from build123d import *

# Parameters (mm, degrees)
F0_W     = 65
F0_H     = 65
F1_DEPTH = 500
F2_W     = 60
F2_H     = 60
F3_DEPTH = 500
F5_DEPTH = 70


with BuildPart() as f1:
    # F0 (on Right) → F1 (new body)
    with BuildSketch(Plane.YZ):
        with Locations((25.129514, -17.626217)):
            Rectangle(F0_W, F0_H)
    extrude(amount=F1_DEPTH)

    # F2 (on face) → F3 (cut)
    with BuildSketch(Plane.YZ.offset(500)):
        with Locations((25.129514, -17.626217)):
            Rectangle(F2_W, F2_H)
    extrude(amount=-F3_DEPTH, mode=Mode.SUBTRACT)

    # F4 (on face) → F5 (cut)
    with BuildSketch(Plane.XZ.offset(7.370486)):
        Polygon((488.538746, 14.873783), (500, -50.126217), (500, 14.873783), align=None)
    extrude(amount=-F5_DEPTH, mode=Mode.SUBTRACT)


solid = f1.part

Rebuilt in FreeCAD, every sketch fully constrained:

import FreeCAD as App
import Part
import Sketcher

V = App.Vector
Q = App.Units.Quantity


def add_polygon(sketch, points):
    """Adds a closed chain of lines whose ends are joined by coincident constraints."""
    first, n = sketch.GeometryCount, len(points)
    for a, b in zip(points, points[1:] + points[:1]):
        sketch.addGeometry(Part.LineSegment(App.Vector(*a, 0), App.Vector(*b, 0)), False)
    for i in range(n):
        sketch.addConstraint(Sketcher.Constraint("Coincident", first + i, 2, first + (i + 1) % n, 1))

doc = App.newDocument("Part")
body = doc.addObject("PartDesign::Body", "Body")

# Sketch on YZ plane
sketch1 = doc.addObject("Sketcher::SketchObject", "Sketch")
body.addObject(sketch1)
sketch1.AttachmentSupport = (doc.YZ_Plane, [""])
sketch1.MapMode = "FlatFace"
add_polygon(sketch1, [(-7, 15), (-7, -50), (58, -50), (58, 15)])  # lines 0-3
sketch1.addConstraint([
    Sketcher.Constraint("Vertical", 0),
    Sketcher.Constraint("Horizontal", 1),
    Sketcher.Constraint("Vertical", 2),
    Sketcher.Constraint("Horizontal", 3),
    Sketcher.Constraint("Equal", 3, 0),
    Sketcher.Constraint("DistanceX", 1, 1, 1, 2, 65.0),
    Sketcher.Constraint("DistanceX", 0, 2, -1, 1, 7.370486),
    Sketcher.Constraint("DistanceY", 0, 2, -1, 1, 50.126217),
])
pad1 = doc.addObject("PartDesign::Pad", "Pad")
body.addObject(pad1)
pad1.Profile = sketch1
pad1.Length = 500

# Sketch on YZ plane
sketch2 = doc.addObject("Sketcher::SketchObject", "Sketch001")
body.addObject(sketch2)
sketch2.AttachmentSupport = (doc.YZ_Plane, [""])
sketch2.MapMode = "FlatFace"
sketch2.AttachmentOffset = App.Placement(V(0, 0, 500), App.Rotation())
add_polygon(sketch2, [(-5, 12), (-5, -48), (55, -48), (55, 12)])  # lines 0-3
sketch2.addConstraint([
    Sketcher.Constraint("Vertical", 0),
    Sketcher.Constraint("Horizontal", 1),
    Sketcher.Constraint("Vertical", 2),
    Sketcher.Constraint("Horizontal", 3),
    Sketcher.Constraint("Equal", 3, 0),
    Sketcher.Constraint("DistanceX", 1, 1, 1, 2, 60.0),
    Sketcher.Constraint("DistanceX", 0, 2, -1, 1, 4.870486),
    Sketcher.Constraint("DistanceY", 0, 2, -1, 1, 47.626217),
])
pocket1 = doc.addObject("PartDesign::Pocket", "Pocket")
body.addObject(pocket1)
pocket1.Profile = sketch2
pocket1.Length = 500

# Sketch on XZ plane
sketch3 = doc.addObject("Sketcher::SketchObject", "Sketch002")
body.addObject(sketch3)
sketch3.AttachmentSupport = (doc.XZ_Plane, [""])
sketch3.MapMode = "FlatFace"
sketch3.AttachmentOffset = App.Placement(V(0, 0, 7.370486), App.Rotation())
add_polygon(sketch3, [(489, 15), (500, -50), (500, 15)])  # lines 0-2
sketch3.addConstraint([
    Sketcher.Constraint("Vertical", 1),
    Sketcher.Constraint("Horizontal", 2),
    Sketcher.Constraint("DistanceY", 1, 1, 1, 2, 65.0),
    Sketcher.Constraint("Angle", 0, Q("-80 deg")),
    Sketcher.Constraint("DistanceX", -1, 1, 0, 2, 500.0),
    Sketcher.Constraint("DistanceY", 0, 2, -1, 1, 50.126217),
])
pocket2 = doc.addObject("PartDesign::Pocket", "Pocket001")
body.addObject(pocket2)
pocket2.Profile = sketch3
pocket2.Length = 70

doc.recompute()
